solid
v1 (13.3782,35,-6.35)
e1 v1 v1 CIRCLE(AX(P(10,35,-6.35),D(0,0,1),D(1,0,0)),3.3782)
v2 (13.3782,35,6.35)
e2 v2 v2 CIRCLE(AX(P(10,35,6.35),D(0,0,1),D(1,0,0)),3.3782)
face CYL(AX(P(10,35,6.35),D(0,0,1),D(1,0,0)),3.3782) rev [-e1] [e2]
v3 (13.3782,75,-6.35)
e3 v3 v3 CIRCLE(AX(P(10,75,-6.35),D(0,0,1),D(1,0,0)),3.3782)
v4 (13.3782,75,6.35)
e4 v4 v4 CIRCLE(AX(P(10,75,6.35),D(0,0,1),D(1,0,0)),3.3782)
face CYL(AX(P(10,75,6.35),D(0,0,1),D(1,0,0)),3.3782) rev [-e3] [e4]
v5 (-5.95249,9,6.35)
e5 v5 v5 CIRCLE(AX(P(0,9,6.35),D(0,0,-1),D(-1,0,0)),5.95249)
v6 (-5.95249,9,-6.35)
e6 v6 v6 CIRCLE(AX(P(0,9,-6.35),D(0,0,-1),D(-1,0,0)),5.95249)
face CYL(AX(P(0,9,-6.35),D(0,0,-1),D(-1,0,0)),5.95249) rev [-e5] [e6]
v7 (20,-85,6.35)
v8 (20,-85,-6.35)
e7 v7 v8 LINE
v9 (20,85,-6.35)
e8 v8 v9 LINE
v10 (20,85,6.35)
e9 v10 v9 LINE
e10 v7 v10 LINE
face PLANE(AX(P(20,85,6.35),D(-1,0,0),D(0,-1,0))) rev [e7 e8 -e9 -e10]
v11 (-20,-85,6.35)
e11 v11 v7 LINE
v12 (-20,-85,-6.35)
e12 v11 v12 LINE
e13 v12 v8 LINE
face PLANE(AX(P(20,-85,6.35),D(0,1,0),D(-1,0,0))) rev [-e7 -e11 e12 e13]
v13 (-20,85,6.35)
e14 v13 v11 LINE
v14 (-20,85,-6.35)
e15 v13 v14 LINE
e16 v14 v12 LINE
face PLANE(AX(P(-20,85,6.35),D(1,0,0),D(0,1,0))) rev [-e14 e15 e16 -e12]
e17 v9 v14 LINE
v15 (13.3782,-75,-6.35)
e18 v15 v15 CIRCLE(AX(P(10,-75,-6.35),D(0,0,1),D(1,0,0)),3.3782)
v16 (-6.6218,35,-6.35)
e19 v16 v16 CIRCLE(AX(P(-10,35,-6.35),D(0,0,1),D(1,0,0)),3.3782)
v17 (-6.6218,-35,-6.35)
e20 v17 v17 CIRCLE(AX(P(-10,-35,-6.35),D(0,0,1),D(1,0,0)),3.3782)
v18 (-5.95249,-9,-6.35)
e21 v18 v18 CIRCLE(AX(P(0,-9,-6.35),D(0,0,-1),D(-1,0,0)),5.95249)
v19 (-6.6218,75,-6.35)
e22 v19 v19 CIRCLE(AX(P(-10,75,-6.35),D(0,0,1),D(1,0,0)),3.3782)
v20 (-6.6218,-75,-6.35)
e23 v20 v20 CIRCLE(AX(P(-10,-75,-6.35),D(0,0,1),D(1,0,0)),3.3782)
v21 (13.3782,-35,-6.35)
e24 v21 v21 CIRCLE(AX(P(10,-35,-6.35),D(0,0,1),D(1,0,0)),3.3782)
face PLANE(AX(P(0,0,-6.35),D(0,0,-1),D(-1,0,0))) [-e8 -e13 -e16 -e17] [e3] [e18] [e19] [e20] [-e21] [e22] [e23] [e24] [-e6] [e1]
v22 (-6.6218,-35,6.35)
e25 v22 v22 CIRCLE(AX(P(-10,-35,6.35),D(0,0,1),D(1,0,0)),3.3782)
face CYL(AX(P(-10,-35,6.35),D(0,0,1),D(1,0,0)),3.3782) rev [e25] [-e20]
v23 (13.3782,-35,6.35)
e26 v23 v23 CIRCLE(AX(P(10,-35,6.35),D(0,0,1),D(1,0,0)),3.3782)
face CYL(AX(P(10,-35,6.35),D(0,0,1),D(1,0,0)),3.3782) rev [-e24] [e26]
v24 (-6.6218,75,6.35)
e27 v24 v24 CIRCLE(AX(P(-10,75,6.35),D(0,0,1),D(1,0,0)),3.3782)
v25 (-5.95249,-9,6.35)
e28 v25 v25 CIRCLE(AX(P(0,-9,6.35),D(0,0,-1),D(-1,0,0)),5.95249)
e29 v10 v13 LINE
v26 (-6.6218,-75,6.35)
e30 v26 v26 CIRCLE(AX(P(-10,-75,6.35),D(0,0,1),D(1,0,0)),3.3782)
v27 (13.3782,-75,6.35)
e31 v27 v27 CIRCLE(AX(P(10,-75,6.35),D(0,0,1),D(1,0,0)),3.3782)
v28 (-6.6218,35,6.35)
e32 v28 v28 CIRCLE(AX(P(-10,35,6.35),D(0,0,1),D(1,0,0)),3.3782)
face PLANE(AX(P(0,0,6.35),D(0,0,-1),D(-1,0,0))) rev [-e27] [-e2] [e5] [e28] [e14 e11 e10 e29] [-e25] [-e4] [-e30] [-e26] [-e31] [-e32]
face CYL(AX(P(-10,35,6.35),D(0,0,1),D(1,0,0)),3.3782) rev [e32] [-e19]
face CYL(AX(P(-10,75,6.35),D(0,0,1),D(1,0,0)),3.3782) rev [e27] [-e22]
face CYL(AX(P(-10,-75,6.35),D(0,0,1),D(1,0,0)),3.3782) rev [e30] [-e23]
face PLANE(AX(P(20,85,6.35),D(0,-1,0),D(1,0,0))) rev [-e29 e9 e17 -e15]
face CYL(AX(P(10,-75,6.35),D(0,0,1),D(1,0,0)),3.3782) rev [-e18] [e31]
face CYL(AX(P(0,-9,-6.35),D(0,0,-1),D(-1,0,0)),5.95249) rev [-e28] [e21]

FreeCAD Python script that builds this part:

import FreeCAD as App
import Part
import Sketcher

V = App.Vector
Q = App.Units.Quantity

doc = App.newDocument("Part")
body = doc.addObject("PartDesign::Body", "Body")

# Sketch on XY plane
sketch1 = body.newObject("Sketcher::SketchObject", "Sketch")
sketch1.AttachmentSupport = (doc.getObject("XY_Plane"), [""])
sketch1.MapMode = "FlatFace"
sketch1.addGeometry(Part.LineSegment(V(-20, 85, 0), V(-20, -85, 0)), False)
sketch1.addGeometry(Part.LineSegment(V(-20, -85, 0), V(20, -85, 0)), False)
sketch1.addGeometry(Part.LineSegment(V(20, -85, 0), V(20, 85, 0)), False)
sketch1.addGeometry(Part.LineSegment(V(20, 85, 0), V(-20, 85, 0)), False)
sketch1.addConstraint(Sketcher.Constraint("Coincident", 0, 2, 1, 1))
sketch1.addConstraint(Sketcher.Constraint("Coincident", 1, 2, 2, 1))
sketch1.addConstraint(Sketcher.Constraint("Coincident", 2, 2, 3, 1))
sketch1.addConstraint(Sketcher.Constraint("Coincident", 3, 2, 0, 1))
sketch1.addConstraint(Sketcher.Constraint("Vertical", 0))
sketch1.addConstraint(Sketcher.Constraint("Horizontal", 1))
sketch1.addConstraint(Sketcher.Constraint("Vertical", 2))
sketch1.addConstraint(Sketcher.Constraint("Horizontal", 3))
sketch1.addConstraint(Sketcher.Constraint("Symmetric", 0, 2, 2, 2, -1, 1))
sketch1.addConstraint(Sketcher.Constraint("DistanceX", 1, 1, 1, 2, Q("40 mm")))
sketch1.addConstraint(Sketcher.Constraint("DistanceY", 0, 2, 0, 1, Q("170 mm")))
pad1 = body.newObject("PartDesign::Pad", "Pad")
pad1.Profile = sketch1
pad1.Length = 12.7
pad1.Midplane = True

# Sketch on XY plane
sketch2 = body.newObject("Sketcher::SketchObject", "Sketch001")
sketch2.AttachmentSupport = (doc.getObject("XY_Plane"), [""])
sketch2.MapMode = "FlatFace"
sketch2.AttachmentOffset = App.Placement(V(0, 0, 6.35), App.Rotation())
sketch2.addGeometry(Part.Circle(V(10, 75, 0), V(0, 0, 1), 3.4), False)
sketch2.addGeometry(Part.Circle(V(10, 35, 0), V(0, 0, 1), 3.4), False)
sketch2.addGeometry(Part.Circle(V(-10, 35, 0), V(0, 0, 1), 3.4), False)
sketch2.addGeometry(Part.Circle(V(-10, 75, 0), V(0, 0, 1), 3.4), False)
sketch2.addGeometry(Part.Circle(V(-10, -75, 0), V(0, 0, 1), 3.4), False)
sketch2.addGeometry(Part.Circle(V(-10, -35, 0), V(0, 0, 1), 3.4), False)
sketch2.addGeometry(Part.Circle(V(10, -35, 0), V(0, 0, 1), 3.4), False)
sketch2.addGeometry(Part.Circle(V(10, -75, 0), V(0, 0, 1), 3.4), False)
sketch2.addConstraint(Sketcher.Constraint("Equal", 0, 1))
sketch2.addConstraint(Sketcher.Constraint("Equal", 1, 2))
sketch2.addConstraint(Sketcher.Constraint("Equal", 2, 3))
sketch2.addConstraint(Sketcher.Constraint("Equal", 3, 4))
sketch2.addConstraint(Sketcher.Constraint("Equal", 4, 5))
sketch2.addConstraint(Sketcher.Constraint("Equal", 5, 6))
sketch2.addConstraint(Sketcher.Constraint("Equal", 6, 7))
sketch2.addConstraint(Sketcher.Constraint("Symmetric", 0, 3, 4, 3, -1, 1))
sketch2.addConstraint(Sketcher.Constraint("Symmetric", 1, 3, 5, 3, -1, 1))
sketch2.addConstraint(Sketcher.Constraint("Symmetric", 2, 3, 6, 3, -1, 1))
sketch2.addConstraint(Sketcher.Constraint("Symmetric", 3, 3, 7, 3, -1, 1))
sketch2.addConstraint(Sketcher.Constraint("Symmetric", 1, 3, 2, 3, -2))
sketch2.addConstraint(Sketcher.Constraint("Symmetric", 0, 3, 3, 3, -2))
sketch2.addConstraint(Sketcher.Constraint("Vertical", 0, 3, 1, 3))
sketch2.addConstraint(Sketcher.Constraint("DistanceX", -1, 1, 0, 3, Q("10 mm")))
sketch2.addConstraint(Sketcher.Constraint("DistanceY", -1, 1, 0, 3, Q("75 mm")))
sketch2.addConstraint(Sketcher.Constraint("DistanceY", -1, 1, 1, 3, Q("35 mm")))
sketch2.addConstraint(Sketcher.Constraint("Diameter", 0, Q("6.7564 mm")))
doc.recompute()
hole = body.newObject("PartDesign::Hole", "Hole")
hole.Profile = sketch2
hole.ThreadType = "None"
hole.Diameter = 6.7564
hole.DepthType = "ThroughAll"

# Sketch on XY plane
sketch3 = body.newObject("Sketcher::SketchObject", "Sketch002")
sketch3.AttachmentSupport = (doc.getObject("XY_Plane"), [""])
sketch3.MapMode = "FlatFace"
sketch3.AttachmentOffset = App.Placement(V(0, 0, -6.35), App.Rotation())
sketch3.addGeometry(Part.Circle(V(0, -9, 0), V(0, 0, 1), 6), False)
sketch3.addGeometry(Part.Circle(V(0, 9, 0), V(0, 0, 1), 6), False)
sketch3.addConstraint(Sketcher.Constraint("Equal", 0, 1))
sketch3.addConstraint(Sketcher.Constraint("Symmetric", 0, 3, 1, 3, -1, 1))
sketch3.addConstraint(Sketcher.Constraint("PointOnObject", 0, 3, -2))
sketch3.addConstraint(Sketcher.Constraint("DistanceY", 0, 3, -1, 1, Q("9 mm")))
sketch3.addConstraint(Sketcher.Constraint("Diameter", 0, Q("11.90498 mm")))
doc.recompute()
hole2 = body.newObject("PartDesign::Hole", "Hole001")
hole2.Profile = sketch3
hole2.ThreadType = "None"
hole2.Diameter = 11.90498
hole2.DepthType = "ThroughAll"
hole2.Reversed = True

doc.recompute()
